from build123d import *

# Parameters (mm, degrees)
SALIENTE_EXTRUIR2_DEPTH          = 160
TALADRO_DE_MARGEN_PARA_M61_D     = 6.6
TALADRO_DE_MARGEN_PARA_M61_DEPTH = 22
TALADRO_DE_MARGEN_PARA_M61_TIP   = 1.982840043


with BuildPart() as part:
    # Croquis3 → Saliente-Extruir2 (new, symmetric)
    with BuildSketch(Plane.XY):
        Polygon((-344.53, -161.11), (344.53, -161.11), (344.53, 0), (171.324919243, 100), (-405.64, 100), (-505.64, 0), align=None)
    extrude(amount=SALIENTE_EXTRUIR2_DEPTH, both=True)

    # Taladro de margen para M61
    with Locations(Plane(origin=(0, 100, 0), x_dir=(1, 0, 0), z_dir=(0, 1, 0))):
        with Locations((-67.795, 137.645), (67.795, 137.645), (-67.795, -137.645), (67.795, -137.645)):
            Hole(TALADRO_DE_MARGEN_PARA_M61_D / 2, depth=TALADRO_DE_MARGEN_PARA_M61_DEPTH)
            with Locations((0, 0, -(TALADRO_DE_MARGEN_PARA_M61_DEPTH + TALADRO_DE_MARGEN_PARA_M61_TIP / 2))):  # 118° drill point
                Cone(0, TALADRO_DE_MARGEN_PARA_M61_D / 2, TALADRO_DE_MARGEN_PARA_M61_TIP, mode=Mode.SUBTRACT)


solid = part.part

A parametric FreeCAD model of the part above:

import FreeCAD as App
import Part
import Sketcher
from FreeCAD import Vector
Q = App.Units.Quantity

doc = App.newDocument("Part")
body = doc.addObject("PartDesign::Body", "Body")

# Sketch on XY plane
sketch1 = doc.addObject("Sketcher::SketchObject", "Sketch")
body.addObject(sketch1)
sketch1.AttachmentSupport = (doc.XY_Plane, [""])
sketch1.MapMode = "FlatFace"
sketch1.addGeometry(Part.LineSegment(Vector(-344.53, -161.11, 0), Vector(344.53, -161.11, 0)), False)
sketch1.addGeometry(Part.LineSegment(Vector(344.53, -161.11, 0), Vector(344.53, 0, 0)), False)
sketch1.addGeometry(Part.LineSegment(Vector(344.53, 0, 0), Vector(171.324919, 100, 0)), False)
sketch1.addGeometry(Part.LineSegment(Vector(171.324919, 100, 0), Vector(-405.64, 100, 0)), False)
sketch1.addGeometry(Part.LineSegment(Vector(-405.64, 100, 0), Vector(-505.64, 0, 0)), False)
sketch1.addGeometry(Part.LineSegment(Vector(-505.64, 0, 0), Vector(-344.53, -161.11, 0)), False)
sketch1.addConstraint(Sketcher.Constraint("Coincident", 0, 2, 1, 1))
sketch1.addConstraint(Sketcher.Constraint("Coincident", 1, 2, 2, 1))
sketch1.addConstraint(Sketcher.Constraint("Coincident", 2, 2, 3, 1))
sketch1.addConstraint(Sketcher.Constraint("Coincident", 3, 2, 4, 1))
sketch1.addConstraint(Sketcher.Constraint("Coincident", 4, 2, 5, 1))
sketch1.addConstraint(Sketcher.Constraint("Coincident", 5, 2, 0, 1))
sketch1.addConstraint(Sketcher.Constraint("Horizontal", 0))
sketch1.addConstraint(Sketcher.Constraint("Vertical", 1))
sketch1.addConstraint(Sketcher.Constraint("Horizontal", 3))
sketch1.addConstraint(Sketcher.Constraint("PointOnObject", 1, 2, -1))
sketch1.addConstraint(Sketcher.Constraint("PointOnObject", 4, 2, -1))
sketch1.addConstraint(Sketcher.Constraint("Perpendicular", 4, 5))
sketch1.addConstraint(Sketcher.Constraint("Angle", 2, Q("150 deg")))
sketch1.addConstraint(Sketcher.Constraint("Angle", 4, Q("-135 deg")))
sketch1.addConstraint(Sketcher.Constraint("Distance", 2, 200.0))
sketch1.addConstraint(Sketcher.Constraint("DistanceX", 0, 1, 0, 2, 689.06))
sketch1.addConstraint(Sketcher.Constraint("DistanceY", 1, 1, 1, 2, 161.11))
sketch1.addConstraint(Sketcher.Constraint("DistanceX", -1, 1, 0, 2, 344.53))
pad1 = doc.addObject("PartDesign::Pad", "Pad")
body.addObject(pad1)
pad1.Profile = sketch1
pad1.Length = 320
pad1.Midplane = True

# Sketch on XZ plane
sketch2 = doc.addObject("Sketcher::SketchObject", "Sketch001")
body.addObject(sketch2)
sketch2.AttachmentSupport = (doc.XZ_Plane, [""])
sketch2.MapMode = "FlatFace"
sketch2.AttachmentOffset = App.Placement(Vector(0, 0, -100), App.Rotation())
sketch2.addGeometry(Part.Circle(Vector(-67.795, -137.645, 0), Vector(0, 0, 1), 3.3), False)
sketch2.addGeometry(Part.Circle(Vector(67.795, -137.645, 0), Vector(0, 0, 1), 3.3), False)
sketch2.addGeometry(Part.Circle(Vector(-67.795, 137.645, 0), Vector(0, 0, 1), 3.3), False)
sketch2.addGeometry(Part.Circle(Vector(67.795, 137.645, 0), Vector(0, 0, 1), 3.3), False)
sketch2.addConstraint(Sketcher.Constraint("Equal", 0, 1))
sketch2.addConstraint(Sketcher.Constraint("Equal", 1, 2))
sketch2.addConstraint(Sketcher.Constraint("Equal", 2, 3))
sketch2.addConstraint(Sketcher.Constraint("Symmetric", 1, 3, 2, 3, -1, 1))
sketch2.addConstraint(Sketcher.Constraint("Symmetric", 0, 3, 3, 3, -1, 1))
sketch2.addConstraint(Sketcher.Constraint("Symmetric", 0, 3, 1, 3, -2))
sketch2.addConstraint(Sketcher.Constraint("Diameter", 0, 6.6))
sketch2.addConstraint(Sketcher.Constraint("DistanceX", 0, 3, 1, 3, 135.59))
sketch2.addConstraint(Sketcher.Constraint("DistanceY", 0, 3, 2, 3, 275.29))
doc.recompute()
hole = doc.addObject("PartDesign::Hole", "Hole")
body.addObject(hole)
hole.Profile = sketch2
hole.ThreadType = "None"
hole.Diameter = 6.6
hole.DepthType = "Dimension"
hole.Depth = 22
hole.DrillPoint = "Angled"
hole.DrillPointAngle = 118
hole.Reversed = True

doc.recompute()
